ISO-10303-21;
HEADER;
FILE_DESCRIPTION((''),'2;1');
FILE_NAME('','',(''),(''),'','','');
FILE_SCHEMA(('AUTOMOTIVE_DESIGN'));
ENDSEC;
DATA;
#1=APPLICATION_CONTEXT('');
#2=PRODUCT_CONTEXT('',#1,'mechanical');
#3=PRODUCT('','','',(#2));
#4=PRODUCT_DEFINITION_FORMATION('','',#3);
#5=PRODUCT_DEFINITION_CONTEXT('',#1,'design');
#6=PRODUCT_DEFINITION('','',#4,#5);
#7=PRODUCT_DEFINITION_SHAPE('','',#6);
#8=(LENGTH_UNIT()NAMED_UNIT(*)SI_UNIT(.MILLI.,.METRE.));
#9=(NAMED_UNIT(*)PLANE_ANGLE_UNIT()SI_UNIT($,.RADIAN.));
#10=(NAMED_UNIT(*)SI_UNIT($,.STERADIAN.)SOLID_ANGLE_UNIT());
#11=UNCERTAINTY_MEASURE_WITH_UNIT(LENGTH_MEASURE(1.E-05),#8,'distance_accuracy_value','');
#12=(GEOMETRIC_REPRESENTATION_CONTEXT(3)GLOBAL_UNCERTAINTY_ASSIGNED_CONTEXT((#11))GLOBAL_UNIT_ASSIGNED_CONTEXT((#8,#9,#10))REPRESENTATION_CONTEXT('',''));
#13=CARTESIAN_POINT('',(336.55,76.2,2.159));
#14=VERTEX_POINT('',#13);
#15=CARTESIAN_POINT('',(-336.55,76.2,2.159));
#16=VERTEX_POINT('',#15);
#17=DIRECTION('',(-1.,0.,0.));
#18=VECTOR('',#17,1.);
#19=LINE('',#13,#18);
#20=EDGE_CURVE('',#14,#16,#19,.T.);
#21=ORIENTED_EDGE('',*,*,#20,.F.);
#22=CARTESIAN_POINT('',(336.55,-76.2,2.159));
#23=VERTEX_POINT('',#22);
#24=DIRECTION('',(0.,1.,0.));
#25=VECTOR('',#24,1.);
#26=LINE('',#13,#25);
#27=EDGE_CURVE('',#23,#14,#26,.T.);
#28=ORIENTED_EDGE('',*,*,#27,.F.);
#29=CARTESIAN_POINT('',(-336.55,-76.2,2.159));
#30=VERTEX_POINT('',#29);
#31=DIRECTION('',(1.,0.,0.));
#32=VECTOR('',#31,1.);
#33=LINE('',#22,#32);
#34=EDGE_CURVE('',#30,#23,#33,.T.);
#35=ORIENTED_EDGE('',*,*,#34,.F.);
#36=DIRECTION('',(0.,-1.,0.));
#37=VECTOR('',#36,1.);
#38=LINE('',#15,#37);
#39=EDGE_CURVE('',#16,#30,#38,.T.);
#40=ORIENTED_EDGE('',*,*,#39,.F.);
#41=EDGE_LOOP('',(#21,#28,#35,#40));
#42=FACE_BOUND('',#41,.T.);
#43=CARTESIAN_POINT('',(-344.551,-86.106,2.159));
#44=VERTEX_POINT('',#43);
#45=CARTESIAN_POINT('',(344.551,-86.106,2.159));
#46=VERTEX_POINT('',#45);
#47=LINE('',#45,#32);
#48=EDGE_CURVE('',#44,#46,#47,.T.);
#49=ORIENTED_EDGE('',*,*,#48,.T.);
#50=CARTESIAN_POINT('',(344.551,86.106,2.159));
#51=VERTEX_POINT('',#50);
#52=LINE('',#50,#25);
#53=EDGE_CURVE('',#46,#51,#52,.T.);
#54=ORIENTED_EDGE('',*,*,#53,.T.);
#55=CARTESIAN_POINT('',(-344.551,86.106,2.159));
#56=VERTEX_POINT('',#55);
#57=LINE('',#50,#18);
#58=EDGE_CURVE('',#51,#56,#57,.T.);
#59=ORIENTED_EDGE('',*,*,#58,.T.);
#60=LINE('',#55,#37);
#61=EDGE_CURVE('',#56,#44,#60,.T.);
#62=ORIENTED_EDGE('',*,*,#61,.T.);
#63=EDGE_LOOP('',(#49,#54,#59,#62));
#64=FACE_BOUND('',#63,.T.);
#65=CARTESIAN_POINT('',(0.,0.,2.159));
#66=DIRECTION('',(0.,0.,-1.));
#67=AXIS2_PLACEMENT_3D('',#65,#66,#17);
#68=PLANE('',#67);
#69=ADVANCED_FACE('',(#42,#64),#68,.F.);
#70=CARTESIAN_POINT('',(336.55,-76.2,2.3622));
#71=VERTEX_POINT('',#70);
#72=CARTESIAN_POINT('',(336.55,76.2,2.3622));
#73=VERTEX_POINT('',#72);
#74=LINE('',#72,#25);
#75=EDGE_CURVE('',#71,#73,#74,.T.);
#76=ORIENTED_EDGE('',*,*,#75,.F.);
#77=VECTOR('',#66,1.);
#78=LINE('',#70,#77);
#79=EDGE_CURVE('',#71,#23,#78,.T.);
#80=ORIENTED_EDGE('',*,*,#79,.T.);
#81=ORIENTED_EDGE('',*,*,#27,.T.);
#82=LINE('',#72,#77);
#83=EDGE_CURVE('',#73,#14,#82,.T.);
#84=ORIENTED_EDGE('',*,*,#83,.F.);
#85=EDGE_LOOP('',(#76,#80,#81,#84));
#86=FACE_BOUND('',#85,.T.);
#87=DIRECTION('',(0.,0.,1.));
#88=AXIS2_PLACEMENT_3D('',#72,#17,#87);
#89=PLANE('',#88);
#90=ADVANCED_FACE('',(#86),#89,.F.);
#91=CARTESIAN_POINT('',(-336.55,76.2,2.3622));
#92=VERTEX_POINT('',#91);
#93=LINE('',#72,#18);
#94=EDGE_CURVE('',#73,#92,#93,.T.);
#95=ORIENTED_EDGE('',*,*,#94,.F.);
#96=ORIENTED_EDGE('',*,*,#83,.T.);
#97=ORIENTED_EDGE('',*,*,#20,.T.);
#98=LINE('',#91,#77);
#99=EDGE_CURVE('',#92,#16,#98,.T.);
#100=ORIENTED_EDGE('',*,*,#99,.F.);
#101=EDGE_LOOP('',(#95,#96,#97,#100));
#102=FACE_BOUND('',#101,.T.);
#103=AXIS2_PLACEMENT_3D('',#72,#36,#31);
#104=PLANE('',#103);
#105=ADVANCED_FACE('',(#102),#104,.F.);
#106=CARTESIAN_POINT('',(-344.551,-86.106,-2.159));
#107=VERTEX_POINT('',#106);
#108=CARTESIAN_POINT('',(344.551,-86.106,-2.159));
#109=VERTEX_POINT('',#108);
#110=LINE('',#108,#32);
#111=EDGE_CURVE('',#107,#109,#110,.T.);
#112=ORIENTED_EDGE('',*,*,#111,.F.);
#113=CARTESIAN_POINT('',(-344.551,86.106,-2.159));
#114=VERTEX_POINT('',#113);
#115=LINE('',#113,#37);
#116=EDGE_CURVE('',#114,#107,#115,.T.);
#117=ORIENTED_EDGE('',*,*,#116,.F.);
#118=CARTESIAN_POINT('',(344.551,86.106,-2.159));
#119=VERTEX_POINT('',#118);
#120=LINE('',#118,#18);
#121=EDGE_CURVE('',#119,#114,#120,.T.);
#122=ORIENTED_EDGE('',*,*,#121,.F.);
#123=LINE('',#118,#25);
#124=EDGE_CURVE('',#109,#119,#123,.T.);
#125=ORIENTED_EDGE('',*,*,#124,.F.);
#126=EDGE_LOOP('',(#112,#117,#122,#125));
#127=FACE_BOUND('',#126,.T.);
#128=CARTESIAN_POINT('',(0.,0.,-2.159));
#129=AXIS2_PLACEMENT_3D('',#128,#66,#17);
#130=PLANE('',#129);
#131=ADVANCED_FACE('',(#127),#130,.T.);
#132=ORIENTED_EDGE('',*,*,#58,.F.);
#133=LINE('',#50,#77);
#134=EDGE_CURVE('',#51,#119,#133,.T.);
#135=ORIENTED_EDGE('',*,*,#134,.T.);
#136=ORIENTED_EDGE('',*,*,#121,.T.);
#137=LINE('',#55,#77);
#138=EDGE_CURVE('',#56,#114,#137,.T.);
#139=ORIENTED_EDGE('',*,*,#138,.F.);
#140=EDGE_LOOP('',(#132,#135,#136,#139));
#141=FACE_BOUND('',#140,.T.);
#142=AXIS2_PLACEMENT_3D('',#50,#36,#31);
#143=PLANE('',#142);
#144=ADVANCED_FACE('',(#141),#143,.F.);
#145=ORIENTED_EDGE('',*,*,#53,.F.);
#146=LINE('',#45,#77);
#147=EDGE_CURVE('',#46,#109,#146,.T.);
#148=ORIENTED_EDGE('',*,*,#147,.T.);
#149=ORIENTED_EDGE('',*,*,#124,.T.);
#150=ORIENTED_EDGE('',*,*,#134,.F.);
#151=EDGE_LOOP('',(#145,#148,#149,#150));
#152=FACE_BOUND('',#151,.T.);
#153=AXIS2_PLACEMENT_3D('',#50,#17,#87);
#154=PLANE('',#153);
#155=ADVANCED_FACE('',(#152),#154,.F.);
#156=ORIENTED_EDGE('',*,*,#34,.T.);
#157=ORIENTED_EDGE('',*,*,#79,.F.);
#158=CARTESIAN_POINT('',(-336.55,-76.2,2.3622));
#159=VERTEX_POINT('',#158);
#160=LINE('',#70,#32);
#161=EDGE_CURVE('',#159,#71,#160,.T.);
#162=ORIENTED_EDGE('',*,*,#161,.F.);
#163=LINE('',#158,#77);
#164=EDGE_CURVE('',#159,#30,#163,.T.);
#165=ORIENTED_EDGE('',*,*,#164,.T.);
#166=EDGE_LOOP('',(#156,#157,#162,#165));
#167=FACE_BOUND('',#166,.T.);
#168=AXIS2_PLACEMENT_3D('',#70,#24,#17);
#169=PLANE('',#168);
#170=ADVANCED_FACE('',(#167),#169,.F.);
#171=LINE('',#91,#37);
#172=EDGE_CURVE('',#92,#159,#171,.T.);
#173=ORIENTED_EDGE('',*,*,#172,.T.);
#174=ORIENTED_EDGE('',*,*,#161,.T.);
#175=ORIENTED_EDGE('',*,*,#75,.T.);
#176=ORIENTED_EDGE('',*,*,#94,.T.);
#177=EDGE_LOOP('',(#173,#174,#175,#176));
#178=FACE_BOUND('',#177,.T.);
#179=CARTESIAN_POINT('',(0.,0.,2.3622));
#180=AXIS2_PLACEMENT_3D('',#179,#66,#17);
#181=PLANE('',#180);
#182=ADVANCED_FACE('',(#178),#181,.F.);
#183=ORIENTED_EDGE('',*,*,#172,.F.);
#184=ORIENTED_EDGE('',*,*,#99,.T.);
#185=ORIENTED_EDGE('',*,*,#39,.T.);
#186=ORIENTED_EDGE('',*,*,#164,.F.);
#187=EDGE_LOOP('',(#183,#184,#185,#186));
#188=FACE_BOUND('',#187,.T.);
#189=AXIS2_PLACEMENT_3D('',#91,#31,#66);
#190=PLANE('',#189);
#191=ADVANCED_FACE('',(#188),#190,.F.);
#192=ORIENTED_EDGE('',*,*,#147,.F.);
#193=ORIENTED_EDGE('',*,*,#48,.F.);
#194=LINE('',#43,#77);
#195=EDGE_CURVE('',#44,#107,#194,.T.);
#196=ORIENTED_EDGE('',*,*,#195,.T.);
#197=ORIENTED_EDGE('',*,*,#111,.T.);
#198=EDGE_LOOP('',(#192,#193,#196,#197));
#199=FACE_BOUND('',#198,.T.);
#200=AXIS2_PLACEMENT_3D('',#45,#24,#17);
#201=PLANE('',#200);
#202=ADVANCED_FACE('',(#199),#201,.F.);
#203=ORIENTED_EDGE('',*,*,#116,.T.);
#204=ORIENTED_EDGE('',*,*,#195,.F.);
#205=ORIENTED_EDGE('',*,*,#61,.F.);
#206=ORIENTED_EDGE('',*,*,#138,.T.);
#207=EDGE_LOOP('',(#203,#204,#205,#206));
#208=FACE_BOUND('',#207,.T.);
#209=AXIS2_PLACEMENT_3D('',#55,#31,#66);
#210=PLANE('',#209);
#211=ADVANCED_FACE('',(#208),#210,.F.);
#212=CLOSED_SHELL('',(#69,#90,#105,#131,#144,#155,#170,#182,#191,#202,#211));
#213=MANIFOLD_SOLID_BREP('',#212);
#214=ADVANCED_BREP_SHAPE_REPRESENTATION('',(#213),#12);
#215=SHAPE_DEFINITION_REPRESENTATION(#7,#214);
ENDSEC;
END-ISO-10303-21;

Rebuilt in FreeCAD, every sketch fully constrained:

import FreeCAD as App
import Part
import Sketcher
Q = App.Units.Quantity


def add_polygon(sketch, points):
    """Adds a closed chain of lines whose ends are joined by coincident constraints."""
    first, n = sketch.GeometryCount, len(points)
    for a, b in zip(points, points[1:] + points[:1]):
        sketch.addGeometry(Part.LineSegment(App.Vector(*a, 0), App.Vector(*b, 0)), False)
    for i in range(n):
        sketch.addConstraint(Sketcher.Constraint("Coincident", first + i, 2, first + (i + 1) % n, 1))

doc = App.newDocument("Part")
params = doc.addObject("Spreadsheet::Sheet", "Params")
for row, (alias, value) in enumerate([
    ("sketch1_width", "27.13 in"),
    ("sketch1_height", "6.78 in"),
    ("pad1_length", "0.17 in"),
    ("sketch2_height", "6 in"),
    ("sketch2_width", "26.5 in"),
    ("pad2_length", "0.008 in"),
], start=1):
    params.set(f"A{row}", alias)
    params.set(f"B{row}", "=" + value)
    params.setAlias(f"B{row}", alias)

body = doc.addObject("PartDesign::Body", "Body")

# Sketch on XY plane
sketch1 = body.newObject("Sketcher::SketchObject", "Sketch")
sketch1.AttachmentSupport = (doc.getObject("XY_Plane"), [""])
sketch1.MapMode = "FlatFace"
add_polygon(sketch1, [(-344.551, 86.106), (-344.551, -86.106), (344.551, -86.106), (344.551, 86.106)])  # lines 0-3
sketch1.addConstraint([
    Sketcher.Constraint("Vertical", 0),
    Sketcher.Constraint("Horizontal", 1),
    Sketcher.Constraint("Vertical", 2),
    Sketcher.Constraint("Horizontal", 3),
    Sketcher.Constraint("Symmetric", 0, 2, 2, 2, -1, 1),
    Sketcher.Constraint("DistanceX", 1, 1, 1, 2, Q("27.13 in")),
    Sketcher.Constraint("DistanceY", 0, 2, 0, 1, Q("6.78 in")),
])
sketch1.setExpression("Constraints[9]", "Params.sketch1_width")
sketch1.setExpression("Constraints[10]", "Params.sketch1_height")
pad1 = body.newObject("PartDesign::Pad", "Pad")
pad1.Profile = sketch1
pad1.setExpression("Length", "Params.pad1_length")
pad1.Midplane = True

# Sketch on XY plane
sketch2 = body.newObject("Sketcher::SketchObject", "Sketch001")
sketch2.AttachmentSupport = (doc.getObject("XY_Plane"), [""])
sketch2.MapMode = "FlatFace"
sketch2.AttachmentOffset = App.Placement(App.Vector(0, 0, 0.085 * 25.4), App.Rotation())
add_polygon(sketch2, [(-336.55, 76.2), (-336.55, -76.2), (336.55, -76.2), (336.55, 76.2)])  # lines 0-3
sketch2.addConstraint([
    Sketcher.Constraint("Vertical", 0),
    Sketcher.Constraint("Horizontal", 1),
    Sketcher.Constraint("Vertical", 2),
    Sketcher.Constraint("Horizontal", 3),
    Sketcher.Constraint("Symmetric", 0, 2, 2, 2, -1, 1),
    Sketcher.Constraint("DistanceY", 0, 2, 0, 1, Q("6 in")),
    Sketcher.Constraint("DistanceX", 1, 1, 1, 2, Q("26.5 in")),
])
sketch2.setExpression("Constraints[9]", "Params.sketch2_height")
sketch2.setExpression("Constraints[10]", "Params.sketch2_width")
pad2 = body.newObject("PartDesign::Pad", "Pad001")
pad2.Profile = sketch2
pad2.setExpression("Length", "Params.pad2_length")

doc.recompute()
